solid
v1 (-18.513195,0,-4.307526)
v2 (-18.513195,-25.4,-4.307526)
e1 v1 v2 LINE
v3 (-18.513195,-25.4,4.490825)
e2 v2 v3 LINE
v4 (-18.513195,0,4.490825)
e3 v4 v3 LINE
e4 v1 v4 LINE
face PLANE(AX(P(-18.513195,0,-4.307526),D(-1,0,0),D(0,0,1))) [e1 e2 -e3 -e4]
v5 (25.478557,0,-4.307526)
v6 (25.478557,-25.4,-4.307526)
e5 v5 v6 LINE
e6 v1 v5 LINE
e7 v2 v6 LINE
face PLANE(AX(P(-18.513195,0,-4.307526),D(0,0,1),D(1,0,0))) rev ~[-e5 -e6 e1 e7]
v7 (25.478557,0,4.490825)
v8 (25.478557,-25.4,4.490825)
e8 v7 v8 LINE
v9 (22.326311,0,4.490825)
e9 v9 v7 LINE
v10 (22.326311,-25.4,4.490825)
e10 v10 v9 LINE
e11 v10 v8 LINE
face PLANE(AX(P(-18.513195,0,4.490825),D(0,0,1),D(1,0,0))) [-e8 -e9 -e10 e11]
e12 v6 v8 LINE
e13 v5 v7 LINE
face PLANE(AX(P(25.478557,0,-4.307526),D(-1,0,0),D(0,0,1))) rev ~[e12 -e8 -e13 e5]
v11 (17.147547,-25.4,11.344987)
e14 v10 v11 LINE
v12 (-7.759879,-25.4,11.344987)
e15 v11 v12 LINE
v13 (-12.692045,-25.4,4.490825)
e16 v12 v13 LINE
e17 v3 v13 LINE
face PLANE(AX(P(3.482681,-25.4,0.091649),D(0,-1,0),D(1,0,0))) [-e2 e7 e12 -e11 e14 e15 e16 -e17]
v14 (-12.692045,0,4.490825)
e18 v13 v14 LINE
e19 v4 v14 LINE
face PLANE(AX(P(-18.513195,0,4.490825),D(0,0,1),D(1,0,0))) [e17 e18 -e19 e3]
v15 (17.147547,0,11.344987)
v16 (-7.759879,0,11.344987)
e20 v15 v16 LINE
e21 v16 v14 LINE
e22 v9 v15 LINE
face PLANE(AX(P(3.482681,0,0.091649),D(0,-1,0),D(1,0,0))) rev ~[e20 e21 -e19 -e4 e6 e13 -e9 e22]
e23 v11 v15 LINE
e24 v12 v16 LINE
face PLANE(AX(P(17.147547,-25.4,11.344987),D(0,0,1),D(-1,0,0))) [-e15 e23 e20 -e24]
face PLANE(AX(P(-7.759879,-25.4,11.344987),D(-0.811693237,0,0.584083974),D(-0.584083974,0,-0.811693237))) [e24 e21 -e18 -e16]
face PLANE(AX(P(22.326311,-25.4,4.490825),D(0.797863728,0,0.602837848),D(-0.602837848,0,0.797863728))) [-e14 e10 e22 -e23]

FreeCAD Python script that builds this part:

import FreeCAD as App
import Part
import Sketcher

V = App.Vector
Q = App.Units.Quantity


def add_polygon(sketch, points):
    """Adds a closed chain of lines whose ends are joined by coincident constraints."""
    first, n = sketch.GeometryCount, len(points)
    for a, b in zip(points, points[1:] + points[:1]):
        sketch.addGeometry(Part.LineSegment(App.Vector(*a, 0), App.Vector(*b, 0)), False)
    for i in range(n):
        sketch.addConstraint(Sketcher.Constraint("Coincident", first + i, 2, first + (i + 1) % n, 1))

doc = App.newDocument("Part")
params = doc.addObject("Spreadsheet::Sheet", "Params")
for row, (alias, value) in enumerate([
    ("pad1_length", "1 in"),
    ("pad2_length", "1 in"),
], start=1):
    params.set(f"A{row}", alias)
    params.set(f"B{row}", "=" + value)
    params.setAlias(f"B{row}", alias)

body = doc.addObject("PartDesign::Body", "Body")

# Sketch on XZ plane
sketch1 = body.newObject("Sketcher::SketchObject", "Sketch")
sketch1.AttachmentSupport = (doc.getObject("XZ_Plane"), [""])
sketch1.MapMode = "FlatFace"
add_polygon(sketch1, [(-18.513195, 4.490825), (-18.513195, -4.307526), (25.478557, -4.307526), (25.478557, 4.490825)])  # lines 0-3
sketch1.addConstraint([
    Sketcher.Constraint("Vertical", 0),
    Sketcher.Constraint("Horizontal", 1),
    Sketcher.Constraint("Vertical", 2),
    Sketcher.Constraint("Horizontal", 3),
    Sketcher.Constraint("DistanceX", 1, 1, 1, 2, Q("43.991752 mm")),
    Sketcher.Constraint("DistanceY", 0, 2, 0, 1, Q("8.798351 mm")),
    Sketcher.Constraint("DistanceX", 0, 2, -1, 1, Q("18.513195 mm")),
    Sketcher.Constraint("DistanceY", 0, 2, -1, 1, Q("4.307526 mm")),
])
pad1 = body.newObject("PartDesign::Pad", "Pad")
pad1.Profile = sketch1
pad1.setExpression("Length", "Params.pad1_length")

# Sketch on XZ plane
sketch2 = body.newObject("Sketcher::SketchObject", "Sketch001")
sketch2.AttachmentSupport = (doc.getObject("XZ_Plane"), [""])
sketch2.MapMode = "FlatFace"
sketch2.AttachmentOffset = App.Placement(V(0, 0, 1 * 25.4), App.Rotation())
add_polygon(sketch2, [(-7.759879, 11.344987), (-12.692045, 4.490825), (22.326311, 4.490825), (17.147547, 11.344987)])  # lines 0-3
sketch2.addConstraint([
    Sketcher.Constraint("Horizontal", 1),
    Sketcher.Constraint("Horizontal", 3),
    Sketcher.Constraint("DistanceX", 1, 1, 1, 2, Q("35.018357 mm")),
    Sketcher.Constraint("DistanceX", 3, 2, 3, 1, Q("24.907426 mm")),
    Sketcher.Constraint("DistanceX", -1, 1, 1, 2, Q("22.326311 mm")),
    Sketcher.Constraint("DistanceX", 3, 2, -1, 1, Q("7.759879 mm")),
    Sketcher.Constraint("Distance", 0, Q("8.444276 mm")),
    Sketcher.Constraint("DistanceY", -1, 1, 0, 2, Q("4.490825 mm")),
])
pad2 = body.newObject("PartDesign::Pad", "Pad001")
pad2.Profile = sketch2
pad2.setExpression("Length", "Params.pad2_length")
pad2.Reversed = True

doc.recompute()
